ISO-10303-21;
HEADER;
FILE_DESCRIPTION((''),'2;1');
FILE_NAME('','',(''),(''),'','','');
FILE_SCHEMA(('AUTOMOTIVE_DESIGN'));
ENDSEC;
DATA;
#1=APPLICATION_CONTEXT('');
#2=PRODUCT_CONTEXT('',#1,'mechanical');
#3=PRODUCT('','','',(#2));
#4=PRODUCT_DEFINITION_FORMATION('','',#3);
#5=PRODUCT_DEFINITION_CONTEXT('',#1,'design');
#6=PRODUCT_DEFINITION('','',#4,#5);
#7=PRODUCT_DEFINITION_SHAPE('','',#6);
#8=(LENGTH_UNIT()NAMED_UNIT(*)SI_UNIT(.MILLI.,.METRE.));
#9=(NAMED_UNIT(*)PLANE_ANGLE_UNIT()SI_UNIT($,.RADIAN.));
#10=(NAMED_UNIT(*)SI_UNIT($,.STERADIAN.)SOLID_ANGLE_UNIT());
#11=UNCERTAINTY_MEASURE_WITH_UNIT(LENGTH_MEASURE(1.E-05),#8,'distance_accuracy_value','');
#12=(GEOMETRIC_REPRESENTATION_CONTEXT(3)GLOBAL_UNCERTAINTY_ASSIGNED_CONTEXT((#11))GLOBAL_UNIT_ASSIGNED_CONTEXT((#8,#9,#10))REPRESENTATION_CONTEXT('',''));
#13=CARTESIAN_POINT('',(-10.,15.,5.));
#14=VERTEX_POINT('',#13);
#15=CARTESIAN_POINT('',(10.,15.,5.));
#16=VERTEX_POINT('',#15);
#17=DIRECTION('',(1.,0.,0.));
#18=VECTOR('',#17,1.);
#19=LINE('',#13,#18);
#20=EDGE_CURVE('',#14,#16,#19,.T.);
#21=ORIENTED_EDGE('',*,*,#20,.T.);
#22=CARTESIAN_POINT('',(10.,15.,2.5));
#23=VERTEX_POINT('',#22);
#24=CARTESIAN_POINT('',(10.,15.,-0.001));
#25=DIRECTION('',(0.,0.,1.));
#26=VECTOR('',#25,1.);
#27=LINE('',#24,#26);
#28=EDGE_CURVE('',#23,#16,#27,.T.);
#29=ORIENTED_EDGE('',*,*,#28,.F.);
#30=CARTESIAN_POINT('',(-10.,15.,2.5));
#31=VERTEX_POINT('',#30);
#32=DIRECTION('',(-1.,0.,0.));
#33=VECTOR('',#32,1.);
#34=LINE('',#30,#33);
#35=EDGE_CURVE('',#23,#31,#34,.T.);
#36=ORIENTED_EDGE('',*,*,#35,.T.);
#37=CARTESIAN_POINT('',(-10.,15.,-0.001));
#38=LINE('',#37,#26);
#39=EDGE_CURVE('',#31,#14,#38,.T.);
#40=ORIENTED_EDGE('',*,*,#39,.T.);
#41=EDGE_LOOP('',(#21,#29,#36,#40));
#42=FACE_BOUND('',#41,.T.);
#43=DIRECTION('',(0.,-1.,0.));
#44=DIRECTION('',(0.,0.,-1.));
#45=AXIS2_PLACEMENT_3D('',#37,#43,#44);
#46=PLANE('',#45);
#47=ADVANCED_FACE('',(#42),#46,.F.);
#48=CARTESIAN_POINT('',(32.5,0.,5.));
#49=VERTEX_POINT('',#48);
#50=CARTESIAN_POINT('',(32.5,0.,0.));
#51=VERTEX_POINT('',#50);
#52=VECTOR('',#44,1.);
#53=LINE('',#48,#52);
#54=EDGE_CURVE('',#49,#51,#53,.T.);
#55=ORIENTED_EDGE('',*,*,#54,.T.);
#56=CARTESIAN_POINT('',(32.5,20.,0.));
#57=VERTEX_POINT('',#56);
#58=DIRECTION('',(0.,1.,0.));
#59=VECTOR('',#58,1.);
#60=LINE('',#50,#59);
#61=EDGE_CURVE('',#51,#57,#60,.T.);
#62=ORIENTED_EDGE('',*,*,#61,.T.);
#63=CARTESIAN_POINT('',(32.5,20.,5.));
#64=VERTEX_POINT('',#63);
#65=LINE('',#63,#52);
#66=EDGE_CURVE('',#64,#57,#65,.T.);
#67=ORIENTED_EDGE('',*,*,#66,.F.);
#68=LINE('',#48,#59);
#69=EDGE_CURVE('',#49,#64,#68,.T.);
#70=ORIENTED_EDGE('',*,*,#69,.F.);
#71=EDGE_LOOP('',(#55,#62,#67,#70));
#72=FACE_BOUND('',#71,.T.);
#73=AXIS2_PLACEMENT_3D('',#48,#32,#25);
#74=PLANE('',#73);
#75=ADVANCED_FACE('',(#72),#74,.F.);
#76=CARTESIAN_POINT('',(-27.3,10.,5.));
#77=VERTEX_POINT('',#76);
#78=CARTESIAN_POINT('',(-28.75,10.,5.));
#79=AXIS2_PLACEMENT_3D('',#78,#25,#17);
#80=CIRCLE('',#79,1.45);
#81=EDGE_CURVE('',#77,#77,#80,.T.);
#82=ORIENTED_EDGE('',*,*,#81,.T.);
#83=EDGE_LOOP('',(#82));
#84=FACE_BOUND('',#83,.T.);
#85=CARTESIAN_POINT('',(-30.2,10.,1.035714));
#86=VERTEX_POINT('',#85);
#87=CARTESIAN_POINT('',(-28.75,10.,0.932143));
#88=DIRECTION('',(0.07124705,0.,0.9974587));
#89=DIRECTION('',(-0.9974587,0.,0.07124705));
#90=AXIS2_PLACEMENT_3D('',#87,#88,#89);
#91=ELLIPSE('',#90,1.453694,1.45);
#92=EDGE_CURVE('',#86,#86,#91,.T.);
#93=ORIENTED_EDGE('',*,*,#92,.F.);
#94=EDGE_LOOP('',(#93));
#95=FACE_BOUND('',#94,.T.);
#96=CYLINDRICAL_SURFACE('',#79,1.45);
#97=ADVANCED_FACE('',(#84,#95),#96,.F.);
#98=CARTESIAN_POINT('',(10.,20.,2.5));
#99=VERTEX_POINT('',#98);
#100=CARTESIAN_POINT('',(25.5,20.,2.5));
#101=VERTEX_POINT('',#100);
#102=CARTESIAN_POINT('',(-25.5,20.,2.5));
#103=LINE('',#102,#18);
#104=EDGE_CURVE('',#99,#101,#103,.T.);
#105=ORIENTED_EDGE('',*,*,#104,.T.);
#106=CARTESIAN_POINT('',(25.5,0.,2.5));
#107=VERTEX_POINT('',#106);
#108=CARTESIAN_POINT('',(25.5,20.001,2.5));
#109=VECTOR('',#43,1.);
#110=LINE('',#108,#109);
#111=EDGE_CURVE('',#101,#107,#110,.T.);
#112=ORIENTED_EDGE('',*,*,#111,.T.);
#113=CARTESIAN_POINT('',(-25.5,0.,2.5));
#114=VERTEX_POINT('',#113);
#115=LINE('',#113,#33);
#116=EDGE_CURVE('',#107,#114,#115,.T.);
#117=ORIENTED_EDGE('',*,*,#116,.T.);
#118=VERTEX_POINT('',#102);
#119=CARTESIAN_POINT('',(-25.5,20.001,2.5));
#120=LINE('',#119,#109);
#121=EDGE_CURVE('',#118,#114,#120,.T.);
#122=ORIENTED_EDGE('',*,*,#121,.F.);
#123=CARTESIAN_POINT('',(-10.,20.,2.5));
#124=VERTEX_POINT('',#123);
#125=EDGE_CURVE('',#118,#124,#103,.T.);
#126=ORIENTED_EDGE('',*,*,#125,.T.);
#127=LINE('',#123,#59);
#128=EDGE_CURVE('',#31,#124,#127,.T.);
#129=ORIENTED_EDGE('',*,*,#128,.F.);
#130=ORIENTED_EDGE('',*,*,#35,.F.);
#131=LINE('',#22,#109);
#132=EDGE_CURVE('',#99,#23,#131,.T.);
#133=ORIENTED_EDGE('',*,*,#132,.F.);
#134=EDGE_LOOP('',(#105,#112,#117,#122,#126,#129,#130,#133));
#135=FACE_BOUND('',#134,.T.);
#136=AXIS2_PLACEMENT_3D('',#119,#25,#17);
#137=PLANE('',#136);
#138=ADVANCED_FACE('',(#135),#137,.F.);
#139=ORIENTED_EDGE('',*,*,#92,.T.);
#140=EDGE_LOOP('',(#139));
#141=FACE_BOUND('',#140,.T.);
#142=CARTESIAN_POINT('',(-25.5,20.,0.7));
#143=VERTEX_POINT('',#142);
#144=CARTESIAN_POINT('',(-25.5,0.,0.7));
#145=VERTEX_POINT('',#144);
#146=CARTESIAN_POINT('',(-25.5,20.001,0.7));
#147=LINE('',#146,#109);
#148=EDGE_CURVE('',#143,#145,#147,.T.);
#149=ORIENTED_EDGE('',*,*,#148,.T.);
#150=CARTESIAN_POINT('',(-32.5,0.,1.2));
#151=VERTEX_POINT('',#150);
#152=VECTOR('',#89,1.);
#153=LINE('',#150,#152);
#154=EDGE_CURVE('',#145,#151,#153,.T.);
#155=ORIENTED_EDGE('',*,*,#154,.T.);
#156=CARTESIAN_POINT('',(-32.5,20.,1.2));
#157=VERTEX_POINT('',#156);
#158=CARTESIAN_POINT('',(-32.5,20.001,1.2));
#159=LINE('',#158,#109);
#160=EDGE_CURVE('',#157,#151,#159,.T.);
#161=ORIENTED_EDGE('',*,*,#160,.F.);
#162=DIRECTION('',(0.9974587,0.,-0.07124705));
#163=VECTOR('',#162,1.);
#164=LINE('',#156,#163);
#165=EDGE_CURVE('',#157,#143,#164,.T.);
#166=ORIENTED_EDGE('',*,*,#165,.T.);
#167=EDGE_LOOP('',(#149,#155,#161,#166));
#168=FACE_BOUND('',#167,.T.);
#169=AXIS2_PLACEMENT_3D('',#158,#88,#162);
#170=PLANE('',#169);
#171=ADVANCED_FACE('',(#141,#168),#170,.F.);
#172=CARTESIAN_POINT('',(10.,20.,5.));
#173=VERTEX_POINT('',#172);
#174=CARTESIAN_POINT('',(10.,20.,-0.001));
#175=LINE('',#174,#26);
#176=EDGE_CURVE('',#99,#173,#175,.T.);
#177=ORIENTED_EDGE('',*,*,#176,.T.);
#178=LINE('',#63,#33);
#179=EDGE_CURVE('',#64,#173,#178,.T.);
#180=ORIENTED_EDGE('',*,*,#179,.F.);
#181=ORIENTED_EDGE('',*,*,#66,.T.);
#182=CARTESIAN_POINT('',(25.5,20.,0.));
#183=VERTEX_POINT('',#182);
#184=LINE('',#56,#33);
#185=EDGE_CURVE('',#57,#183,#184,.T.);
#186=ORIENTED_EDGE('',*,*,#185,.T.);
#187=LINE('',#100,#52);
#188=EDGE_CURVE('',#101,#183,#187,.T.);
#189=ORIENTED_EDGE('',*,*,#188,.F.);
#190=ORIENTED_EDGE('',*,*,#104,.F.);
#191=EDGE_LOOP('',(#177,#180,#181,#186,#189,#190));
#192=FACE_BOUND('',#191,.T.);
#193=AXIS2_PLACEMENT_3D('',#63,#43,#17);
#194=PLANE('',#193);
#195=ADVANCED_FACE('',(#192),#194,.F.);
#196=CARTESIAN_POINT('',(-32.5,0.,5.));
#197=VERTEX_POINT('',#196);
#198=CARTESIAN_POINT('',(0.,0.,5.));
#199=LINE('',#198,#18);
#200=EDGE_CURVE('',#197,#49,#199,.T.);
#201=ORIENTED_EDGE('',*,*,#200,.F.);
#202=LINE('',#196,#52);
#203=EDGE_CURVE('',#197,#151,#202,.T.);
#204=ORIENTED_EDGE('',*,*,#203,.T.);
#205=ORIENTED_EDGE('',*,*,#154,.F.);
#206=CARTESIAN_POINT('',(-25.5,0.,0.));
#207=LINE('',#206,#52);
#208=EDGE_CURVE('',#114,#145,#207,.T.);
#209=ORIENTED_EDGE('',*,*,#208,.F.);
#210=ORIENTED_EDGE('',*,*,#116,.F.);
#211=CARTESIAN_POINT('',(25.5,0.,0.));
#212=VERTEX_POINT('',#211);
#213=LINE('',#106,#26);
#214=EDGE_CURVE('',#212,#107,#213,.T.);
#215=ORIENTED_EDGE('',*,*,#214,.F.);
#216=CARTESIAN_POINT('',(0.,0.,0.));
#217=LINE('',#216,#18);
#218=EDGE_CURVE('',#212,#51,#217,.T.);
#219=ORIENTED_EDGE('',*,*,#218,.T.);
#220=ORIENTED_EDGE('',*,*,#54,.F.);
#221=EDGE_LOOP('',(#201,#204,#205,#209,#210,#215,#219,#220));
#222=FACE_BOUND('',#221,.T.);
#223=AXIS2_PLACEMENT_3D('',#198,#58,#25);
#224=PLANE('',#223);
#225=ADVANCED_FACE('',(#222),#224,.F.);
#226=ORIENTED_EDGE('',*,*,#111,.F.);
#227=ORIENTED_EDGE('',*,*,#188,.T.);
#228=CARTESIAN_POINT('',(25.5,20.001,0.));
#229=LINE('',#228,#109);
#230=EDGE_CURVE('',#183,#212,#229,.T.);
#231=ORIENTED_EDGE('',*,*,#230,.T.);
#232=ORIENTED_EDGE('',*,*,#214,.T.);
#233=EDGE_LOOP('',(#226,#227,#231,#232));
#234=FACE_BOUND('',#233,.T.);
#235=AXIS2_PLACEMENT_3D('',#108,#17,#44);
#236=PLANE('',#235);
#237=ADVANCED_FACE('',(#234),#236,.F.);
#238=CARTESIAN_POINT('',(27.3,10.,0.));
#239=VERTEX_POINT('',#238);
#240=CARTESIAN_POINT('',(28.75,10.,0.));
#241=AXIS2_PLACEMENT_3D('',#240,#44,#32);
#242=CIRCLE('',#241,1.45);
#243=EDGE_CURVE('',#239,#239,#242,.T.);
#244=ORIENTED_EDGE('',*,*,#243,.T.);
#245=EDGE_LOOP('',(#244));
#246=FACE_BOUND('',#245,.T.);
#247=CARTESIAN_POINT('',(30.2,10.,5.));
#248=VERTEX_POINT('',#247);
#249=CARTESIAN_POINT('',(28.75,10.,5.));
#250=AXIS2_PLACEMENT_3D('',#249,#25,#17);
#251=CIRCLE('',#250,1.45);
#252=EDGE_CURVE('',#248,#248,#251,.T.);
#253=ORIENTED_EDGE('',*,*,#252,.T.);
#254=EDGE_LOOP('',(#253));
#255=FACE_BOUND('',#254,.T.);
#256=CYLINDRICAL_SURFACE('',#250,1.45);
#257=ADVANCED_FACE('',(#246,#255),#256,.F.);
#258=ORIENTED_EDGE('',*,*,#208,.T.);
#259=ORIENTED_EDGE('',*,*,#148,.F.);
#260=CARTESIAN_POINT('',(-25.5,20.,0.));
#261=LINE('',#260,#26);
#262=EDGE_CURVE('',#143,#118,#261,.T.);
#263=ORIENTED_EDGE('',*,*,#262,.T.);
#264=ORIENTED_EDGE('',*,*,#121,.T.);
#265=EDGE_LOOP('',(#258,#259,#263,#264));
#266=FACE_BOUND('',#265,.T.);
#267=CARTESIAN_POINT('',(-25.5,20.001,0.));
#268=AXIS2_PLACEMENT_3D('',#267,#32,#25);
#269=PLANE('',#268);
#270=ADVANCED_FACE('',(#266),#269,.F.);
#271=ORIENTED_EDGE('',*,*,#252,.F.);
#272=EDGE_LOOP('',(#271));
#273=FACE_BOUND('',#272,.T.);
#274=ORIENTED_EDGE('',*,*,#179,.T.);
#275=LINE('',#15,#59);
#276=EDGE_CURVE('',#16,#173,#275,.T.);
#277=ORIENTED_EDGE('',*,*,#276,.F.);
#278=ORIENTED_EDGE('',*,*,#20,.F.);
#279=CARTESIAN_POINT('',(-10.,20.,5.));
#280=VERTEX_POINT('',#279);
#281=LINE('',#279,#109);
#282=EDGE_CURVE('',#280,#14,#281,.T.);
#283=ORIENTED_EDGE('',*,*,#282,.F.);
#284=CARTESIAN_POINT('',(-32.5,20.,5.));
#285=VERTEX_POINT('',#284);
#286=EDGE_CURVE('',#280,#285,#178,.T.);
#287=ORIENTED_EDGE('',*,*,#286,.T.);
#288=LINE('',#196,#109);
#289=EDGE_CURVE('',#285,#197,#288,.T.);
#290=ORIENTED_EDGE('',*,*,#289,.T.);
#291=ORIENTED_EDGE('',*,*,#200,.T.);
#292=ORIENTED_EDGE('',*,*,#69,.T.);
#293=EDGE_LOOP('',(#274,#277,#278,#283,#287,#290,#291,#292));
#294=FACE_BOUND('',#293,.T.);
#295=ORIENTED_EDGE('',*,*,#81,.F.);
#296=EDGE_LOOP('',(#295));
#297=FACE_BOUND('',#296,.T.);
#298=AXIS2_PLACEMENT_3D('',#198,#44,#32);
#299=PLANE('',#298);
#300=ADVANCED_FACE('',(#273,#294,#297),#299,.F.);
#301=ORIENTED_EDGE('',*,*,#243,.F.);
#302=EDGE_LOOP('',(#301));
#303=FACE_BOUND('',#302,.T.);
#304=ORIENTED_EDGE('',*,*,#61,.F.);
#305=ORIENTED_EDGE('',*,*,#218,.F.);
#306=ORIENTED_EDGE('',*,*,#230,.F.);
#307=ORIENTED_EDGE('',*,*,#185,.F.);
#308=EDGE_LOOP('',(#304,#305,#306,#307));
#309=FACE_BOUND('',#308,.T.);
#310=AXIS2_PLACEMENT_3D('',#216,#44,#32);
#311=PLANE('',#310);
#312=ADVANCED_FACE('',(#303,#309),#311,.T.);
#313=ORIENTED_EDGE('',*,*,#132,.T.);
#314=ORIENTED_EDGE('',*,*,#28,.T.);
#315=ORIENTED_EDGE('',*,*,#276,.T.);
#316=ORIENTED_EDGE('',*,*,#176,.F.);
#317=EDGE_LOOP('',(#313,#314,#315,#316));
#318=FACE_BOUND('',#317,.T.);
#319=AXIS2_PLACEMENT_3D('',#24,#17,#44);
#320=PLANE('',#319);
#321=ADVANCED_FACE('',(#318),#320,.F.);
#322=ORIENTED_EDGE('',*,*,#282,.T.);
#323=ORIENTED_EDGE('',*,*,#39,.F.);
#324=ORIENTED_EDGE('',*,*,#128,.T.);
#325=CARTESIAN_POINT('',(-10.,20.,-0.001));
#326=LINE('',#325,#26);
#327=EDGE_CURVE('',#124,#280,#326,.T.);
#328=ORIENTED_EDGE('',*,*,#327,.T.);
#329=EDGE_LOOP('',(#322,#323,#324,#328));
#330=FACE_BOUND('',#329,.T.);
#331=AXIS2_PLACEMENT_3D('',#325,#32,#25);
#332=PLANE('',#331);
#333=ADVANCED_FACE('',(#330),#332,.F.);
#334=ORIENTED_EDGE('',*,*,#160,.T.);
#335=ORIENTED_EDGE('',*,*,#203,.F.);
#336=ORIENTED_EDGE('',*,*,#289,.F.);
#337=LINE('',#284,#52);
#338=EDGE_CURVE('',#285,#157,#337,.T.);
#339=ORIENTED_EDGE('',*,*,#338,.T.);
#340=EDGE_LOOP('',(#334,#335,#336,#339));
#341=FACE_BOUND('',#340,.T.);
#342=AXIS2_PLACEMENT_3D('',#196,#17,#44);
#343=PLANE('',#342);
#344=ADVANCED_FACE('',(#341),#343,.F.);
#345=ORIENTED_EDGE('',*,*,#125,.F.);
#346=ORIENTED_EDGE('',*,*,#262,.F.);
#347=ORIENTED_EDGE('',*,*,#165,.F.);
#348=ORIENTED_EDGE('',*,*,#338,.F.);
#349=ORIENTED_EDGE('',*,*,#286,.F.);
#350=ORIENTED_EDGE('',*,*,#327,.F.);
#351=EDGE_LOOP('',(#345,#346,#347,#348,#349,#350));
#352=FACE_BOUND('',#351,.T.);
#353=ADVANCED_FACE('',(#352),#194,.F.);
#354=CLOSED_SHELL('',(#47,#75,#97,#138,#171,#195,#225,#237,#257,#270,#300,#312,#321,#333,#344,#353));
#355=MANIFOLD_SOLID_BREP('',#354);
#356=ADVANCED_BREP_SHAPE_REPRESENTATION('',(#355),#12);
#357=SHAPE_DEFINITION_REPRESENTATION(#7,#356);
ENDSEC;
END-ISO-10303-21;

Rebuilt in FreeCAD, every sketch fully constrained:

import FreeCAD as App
import Part
import Sketcher

V = App.Vector
Q = App.Units.Quantity


def add_polygon(sketch, points):
    """Adds a closed chain of lines whose ends are joined by coincident constraints."""
    first, n = sketch.GeometryCount, len(points)
    for a, b in zip(points, points[1:] + points[:1]):
        sketch.addGeometry(Part.LineSegment(App.Vector(*a, 0), App.Vector(*b, 0)), False)
    for i in range(n):
        sketch.addConstraint(Sketcher.Constraint("Coincident", first + i, 2, first + (i + 1) % n, 1))

doc = App.newDocument("Part")
body = doc.addObject("PartDesign::Body", "Body")

# Sketch on XY plane
sketch1 = body.newObject("Sketcher::SketchObject", "Sketch")
sketch1.AttachmentSupport = (doc.getObject("XY_Plane"), [""])
sketch1.MapMode = "FlatFace"
add_polygon(sketch1, [(32, 0), (32, 20), (-32, 20), (-32, 0)])  # lines 0-3
sketch1.addConstraint([
    Sketcher.Constraint("Vertical", 0),
    Sketcher.Constraint("Horizontal", 1),
    Sketcher.Constraint("Vertical", 2),
    Sketcher.Constraint("Horizontal", 3),
    Sketcher.Constraint("Symmetric", 2, 2, 3, 2, -1, 1),
    Sketcher.Constraint("DistanceX", 1, 2, 1, 1, Q("65 mm")),
    Sketcher.Constraint("DistanceY", 0, 1, 0, 2, Q("20 mm")),
])
pad1 = body.newObject("PartDesign::Pad", "Pad")
pad1.Profile = sketch1
pad1.Length = 5

# Sketch on XZ plane
sketch2 = body.newObject("Sketcher::SketchObject", "Sketch001")
sketch2.AttachmentSupport = (doc.getObject("XZ_Plane"), [""])
sketch2.MapMode = "FlatFace"
add_polygon(sketch2, [(-25.5, 2.5), (-25.5, 0), (25.5, 0), (25.5, 2.5)])  # lines 0-3
sketch2.addConstraint([
    Sketcher.Constraint("Vertical", 0),
    Sketcher.Constraint("Horizontal", 1),
    Sketcher.Constraint("Vertical", 2),
    Sketcher.Constraint("Horizontal", 3),
    Sketcher.Constraint("Symmetric", 0, 2, 1, 2, -1, 1),
    Sketcher.Constraint("DistanceX", 1, 1, 1, 2, Q("51 mm")),
    Sketcher.Constraint("DistanceY", 0, 2, 0, 1, Q("2.5 mm")),
])
pocket1 = body.newObject("PartDesign::Pocket", "Pocket")
pocket1.Profile = sketch2
pocket1.Type = "UpToFirst"

# Sketch on XY plane
sketch3 = body.newObject("Sketcher::SketchObject", "Sketch002")
sketch3.AttachmentSupport = (doc.getObject("XY_Plane"), [""])
sketch3.MapMode = "FlatFace"
sketch3.AttachmentOffset = App.Placement(V(0, 0, 5), App.Rotation())
sketch3.addGeometry([
    Part.Circle(V(-28.8, 10, 0), V(0, 0, 1), 1.4),
    Part.Circle(V(28.8, 10, 0), V(0, 0, 1), 1.4),
], False)
sketch3.addConstraint([
    Sketcher.Constraint("Equal", 0, 1),
    Sketcher.Constraint("Symmetric", 0, 3, 1, 3, -2),
    Sketcher.Constraint("Diameter", 0, Q("2.9 mm")),
    Sketcher.Constraint("DistanceY", -1, 1, 0, 3, Q("10 mm")),
    Sketcher.Constraint("DistanceX", 0, 3, 1, 3, Q("57.5 mm")),
])
doc.recompute()
hole = body.newObject("PartDesign::Hole", "Hole")
hole.Profile = sketch3
hole.ThreadType = "None"
hole.Diameter = 2.9
hole.DepthType = "ThroughAll"

# Sketch on XY plane
sketch4 = body.newObject("Sketcher::SketchObject", "Sketch003")
sketch4.AttachmentSupport = (doc.getObject("XY_Plane"), [""])
sketch4.MapMode = "FlatFace"
sketch4.AttachmentOffset = App.Placement(V(0, 0, 5), App.Rotation())
add_polygon(sketch4, [(-10, 20), (-10, 15), (10, 15), (10, 20)])  # lines 0-3
sketch4.addConstraint([
    Sketcher.Constraint("Vertical", 0),
    Sketcher.Constraint("Horizontal", 1),
    Sketcher.Constraint("Vertical", 2),
    Sketcher.Constraint("Horizontal", 3),
    Sketcher.Constraint("DistanceX", 1, 1, 1, 2, Q("20 mm")),
    Sketcher.Constraint("DistanceY", 0, 2, 0, 1, Q("5 mm")),
    Sketcher.Constraint("DistanceX", 0, 2, -1, 1, Q("10 mm")),
    Sketcher.Constraint("DistanceY", -1, 1, 0, 2, Q("15 mm")),
])
pocket2 = body.newObject("PartDesign::Pocket", "Pocket001")
pocket2.Profile = sketch4
pocket2.Type = "UpToFirst"

# Sketch on XZ plane
sketch5 = body.newObject("Sketcher::SketchObject", "Sketch004")
sketch5.AttachmentSupport = (doc.getObject("XZ_Plane"), [""])
sketch5.MapMode = "FlatFace"
add_polygon(sketch5, [(-25.5, 0), (-25.5, 0.7), (-32.5, 1.2), (-32.5, 0)])  # lines 0-3
sketch5.addConstraint([
    Sketcher.Constraint("Vertical", 0),
    Sketcher.Constraint("Vertical", 2),
    Sketcher.Constraint("Horizontal", 3),
    Sketcher.Constraint("PointOnObject", 2, 2, -1),
    Sketcher.Constraint("DistanceX", 3, 1, 3, 2, Q("7 mm")),
    Sketcher.Constraint("DistanceY", 0, 1, 0, 2, Q("0.7 mm")),
    Sketcher.Constraint("DistanceY", 2, 2, 2, 1, Q("1.2 mm")),
    Sketcher.Constraint("DistanceX", 0, 2, -1, 1, Q("25.5 mm")),
])
pocket3 = body.newObject("PartDesign::Pocket", "Pocket002")
pocket3.Profile = sketch5
pocket3.Type = "UpToFirst"

doc.recompute()
